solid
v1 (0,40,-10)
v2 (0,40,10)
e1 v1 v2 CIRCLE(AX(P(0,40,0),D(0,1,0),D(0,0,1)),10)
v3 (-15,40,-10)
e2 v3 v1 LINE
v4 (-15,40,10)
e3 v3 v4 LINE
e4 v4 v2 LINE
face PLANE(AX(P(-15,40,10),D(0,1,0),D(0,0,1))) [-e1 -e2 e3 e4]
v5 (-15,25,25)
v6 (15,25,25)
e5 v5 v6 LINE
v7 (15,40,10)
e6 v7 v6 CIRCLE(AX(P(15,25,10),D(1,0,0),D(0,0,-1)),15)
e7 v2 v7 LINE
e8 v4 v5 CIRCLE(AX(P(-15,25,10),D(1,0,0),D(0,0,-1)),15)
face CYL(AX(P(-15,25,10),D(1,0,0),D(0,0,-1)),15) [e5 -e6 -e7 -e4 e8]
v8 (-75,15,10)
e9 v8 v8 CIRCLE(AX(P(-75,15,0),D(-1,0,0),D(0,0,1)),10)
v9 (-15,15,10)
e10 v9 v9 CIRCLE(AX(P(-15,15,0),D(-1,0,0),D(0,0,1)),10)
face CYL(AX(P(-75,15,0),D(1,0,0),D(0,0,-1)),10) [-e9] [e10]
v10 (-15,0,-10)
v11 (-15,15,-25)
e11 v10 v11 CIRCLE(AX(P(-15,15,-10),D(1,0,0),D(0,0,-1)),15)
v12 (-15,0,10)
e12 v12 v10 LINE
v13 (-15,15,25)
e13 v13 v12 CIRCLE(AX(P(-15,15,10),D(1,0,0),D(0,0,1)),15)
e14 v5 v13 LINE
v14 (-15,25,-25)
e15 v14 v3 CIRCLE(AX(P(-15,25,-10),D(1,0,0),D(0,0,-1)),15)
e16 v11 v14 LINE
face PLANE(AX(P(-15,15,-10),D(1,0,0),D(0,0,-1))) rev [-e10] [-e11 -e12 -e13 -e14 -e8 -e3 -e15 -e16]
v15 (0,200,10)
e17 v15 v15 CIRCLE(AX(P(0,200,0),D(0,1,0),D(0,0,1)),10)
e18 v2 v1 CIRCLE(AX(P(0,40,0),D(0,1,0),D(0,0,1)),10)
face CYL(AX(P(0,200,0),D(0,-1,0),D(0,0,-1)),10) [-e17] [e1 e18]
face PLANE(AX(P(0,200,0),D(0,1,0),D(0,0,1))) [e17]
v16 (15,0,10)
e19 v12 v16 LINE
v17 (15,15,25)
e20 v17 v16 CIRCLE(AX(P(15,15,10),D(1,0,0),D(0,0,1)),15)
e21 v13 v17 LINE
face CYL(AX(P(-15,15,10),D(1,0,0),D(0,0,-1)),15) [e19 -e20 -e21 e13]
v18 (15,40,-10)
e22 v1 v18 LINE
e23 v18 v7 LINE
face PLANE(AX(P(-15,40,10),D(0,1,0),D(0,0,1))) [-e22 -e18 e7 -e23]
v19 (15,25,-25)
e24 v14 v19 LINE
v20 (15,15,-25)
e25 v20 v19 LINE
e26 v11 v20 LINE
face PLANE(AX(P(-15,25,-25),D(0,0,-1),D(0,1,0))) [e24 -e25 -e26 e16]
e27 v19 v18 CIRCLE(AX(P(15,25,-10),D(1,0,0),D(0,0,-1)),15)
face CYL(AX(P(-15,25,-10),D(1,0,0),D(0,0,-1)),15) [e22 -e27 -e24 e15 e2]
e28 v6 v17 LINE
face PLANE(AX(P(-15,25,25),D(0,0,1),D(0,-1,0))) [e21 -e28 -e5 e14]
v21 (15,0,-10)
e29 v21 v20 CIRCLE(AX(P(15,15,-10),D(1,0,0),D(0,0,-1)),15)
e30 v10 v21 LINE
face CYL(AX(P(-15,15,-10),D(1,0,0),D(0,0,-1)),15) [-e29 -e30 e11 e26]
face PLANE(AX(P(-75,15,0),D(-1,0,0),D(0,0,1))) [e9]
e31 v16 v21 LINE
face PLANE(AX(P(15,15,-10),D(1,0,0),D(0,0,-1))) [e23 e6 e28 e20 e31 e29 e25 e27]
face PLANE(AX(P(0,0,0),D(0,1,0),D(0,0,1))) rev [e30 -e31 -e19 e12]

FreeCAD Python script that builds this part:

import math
import FreeCAD as App
import Part
import Sketcher
from FreeCAD import Vector
Q = App.Units.Quantity

doc = App.newDocument("Part")
body = doc.addObject("PartDesign::Body", "Body")

# Sketch on XZ plane
sketch1 = body.newObject("Sketcher::SketchObject", "Sketch")
sketch1.AttachmentSupport = (doc.getObject("XZ_Plane"), [""])
sketch1.MapMode = "FlatFace"
sketch1.addGeometry(Part.Circle(Vector(0, 0, 0), Vector(0, 0, 1), 10), False)
sketch1.addConstraint(Sketcher.Constraint("Coincident", 0, 3, -1, 1))
sketch1.addConstraint(Sketcher.Constraint("Diameter", 0, Q("20 mm")))
pad1 = body.newObject("PartDesign::Pad", "Pad")
pad1.Profile = sketch1
pad1.Length = 200
pad1.Reversed = True

# Sketch on YZ plane
sketch2 = body.newObject("Sketcher::SketchObject", "Sketch001")
sketch2.AttachmentSupport = (doc.getObject("YZ_Plane"), [""])
sketch2.MapMode = "FlatFace"
sketch2.addGeometry(Part.LineSegment(Vector(40, -10, 0), Vector(40, 10, 0)), False)
sketch2.addGeometry(Part.ArcOfCircle(Part.Circle(Vector(25, 10, 0), Vector(0, 0, 1), 15), math.radians(0), math.radians(90)), False)
sketch2.addGeometry(Part.LineSegment(Vector(25, 25, 0), Vector(15, 25, 0)), False)
sketch2.addGeometry(Part.ArcOfCircle(Part.Circle(Vector(15, 10, 0), Vector(0, 0, 1), 15), math.radians(90), math.radians(180)), False)
sketch2.addGeometry(Part.LineSegment(Vector(0, 10, 0), Vector(0, -10, 0)), False)
sketch2.addGeometry(Part.ArcOfCircle(Part.Circle(Vector(15, -10, 0), Vector(0, 0, 1), 15), math.radians(180), math.radians(270)), False)
sketch2.addGeometry(Part.LineSegment(Vector(15, -25, 0), Vector(25, -25, 0)), False)
sketch2.addGeometry(Part.ArcOfCircle(Part.Circle(Vector(25, -10, 0), Vector(0, 0, 1), 15), math.radians(-90), math.radians(0)), False)
sketch2.addConstraint(Sketcher.Constraint("Tangent", 0, 2, 1, 1))
sketch2.addConstraint(Sketcher.Constraint("Tangent", 1, 2, 2, 1))
sketch2.addConstraint(Sketcher.Constraint("Tangent", 2, 2, 3, 1))
sketch2.addConstraint(Sketcher.Constraint("Tangent", 3, 2, 4, 1))
sketch2.addConstraint(Sketcher.Constraint("Tangent", 4, 2, 5, 1))
sketch2.addConstraint(Sketcher.Constraint("Tangent", 5, 2, 6, 1))
sketch2.addConstraint(Sketcher.Constraint("Tangent", 6, 2, 7, 1))
sketch2.addConstraint(Sketcher.Constraint("Tangent", 7, 2, 0, 1))
sketch2.addConstraint(Sketcher.Constraint("Vertical", 0))
sketch2.addConstraint(Sketcher.Constraint("Horizontal", 2))
sketch2.addConstraint(Sketcher.Constraint("Vertical", 4))
sketch2.addConstraint(Sketcher.Constraint("Horizontal", 6))
sketch2.addConstraint(Sketcher.Constraint("Equal", 1, 3))
sketch2.addConstraint(Sketcher.Constraint("Equal", 3, 5))
sketch2.addConstraint(Sketcher.Constraint("Equal", 5, 7))
sketch2.addConstraint(Sketcher.Constraint("Symmetric", 3, 2, 4, 2, -1, 1))
sketch2.addConstraint(Sketcher.Constraint("Radius", 1, Q("15 mm")))
sketch2.addConstraint(Sketcher.Constraint("DistanceX", 2, 2, 2, 1, Q("10 mm")))
sketch2.addConstraint(Sketcher.Constraint("DistanceY", 0, 1, 0, 2, Q("20 mm")))
pad2 = body.newObject("PartDesign::Pad", "Pad001")
pad2.Profile = sketch2
pad2.Type = "TwoLengths"
pad2.Length = 15
pad2.Length2 = 15

# Sketch on YZ plane
sketch3 = body.newObject("Sketcher::SketchObject", "Sketch002")
sketch3.AttachmentSupport = (doc.getObject("YZ_Plane"), [""])
sketch3.MapMode = "FlatFace"
sketch3.AttachmentOffset = App.Placement(Vector(0, 0, -15), App.Rotation())
sketch3.addGeometry(Part.Circle(Vector(15, 0, 0), Vector(0, 0, 1), 10), False)
sketch3.addConstraint(Sketcher.Constraint("PointOnObject", 0, 3, -1))
sketch3.addConstraint(Sketcher.Constraint("Diameter", 0, Q("20 mm")))
sketch3.addConstraint(Sketcher.Constraint("DistanceX", -1, 1, 0, 3, Q("15 mm")))
pad3 = body.newObject("PartDesign::Pad", "Pad002")
pad3.Profile = sketch3
pad3.Length = 60
pad3.Reversed = True

doc.recompute()
